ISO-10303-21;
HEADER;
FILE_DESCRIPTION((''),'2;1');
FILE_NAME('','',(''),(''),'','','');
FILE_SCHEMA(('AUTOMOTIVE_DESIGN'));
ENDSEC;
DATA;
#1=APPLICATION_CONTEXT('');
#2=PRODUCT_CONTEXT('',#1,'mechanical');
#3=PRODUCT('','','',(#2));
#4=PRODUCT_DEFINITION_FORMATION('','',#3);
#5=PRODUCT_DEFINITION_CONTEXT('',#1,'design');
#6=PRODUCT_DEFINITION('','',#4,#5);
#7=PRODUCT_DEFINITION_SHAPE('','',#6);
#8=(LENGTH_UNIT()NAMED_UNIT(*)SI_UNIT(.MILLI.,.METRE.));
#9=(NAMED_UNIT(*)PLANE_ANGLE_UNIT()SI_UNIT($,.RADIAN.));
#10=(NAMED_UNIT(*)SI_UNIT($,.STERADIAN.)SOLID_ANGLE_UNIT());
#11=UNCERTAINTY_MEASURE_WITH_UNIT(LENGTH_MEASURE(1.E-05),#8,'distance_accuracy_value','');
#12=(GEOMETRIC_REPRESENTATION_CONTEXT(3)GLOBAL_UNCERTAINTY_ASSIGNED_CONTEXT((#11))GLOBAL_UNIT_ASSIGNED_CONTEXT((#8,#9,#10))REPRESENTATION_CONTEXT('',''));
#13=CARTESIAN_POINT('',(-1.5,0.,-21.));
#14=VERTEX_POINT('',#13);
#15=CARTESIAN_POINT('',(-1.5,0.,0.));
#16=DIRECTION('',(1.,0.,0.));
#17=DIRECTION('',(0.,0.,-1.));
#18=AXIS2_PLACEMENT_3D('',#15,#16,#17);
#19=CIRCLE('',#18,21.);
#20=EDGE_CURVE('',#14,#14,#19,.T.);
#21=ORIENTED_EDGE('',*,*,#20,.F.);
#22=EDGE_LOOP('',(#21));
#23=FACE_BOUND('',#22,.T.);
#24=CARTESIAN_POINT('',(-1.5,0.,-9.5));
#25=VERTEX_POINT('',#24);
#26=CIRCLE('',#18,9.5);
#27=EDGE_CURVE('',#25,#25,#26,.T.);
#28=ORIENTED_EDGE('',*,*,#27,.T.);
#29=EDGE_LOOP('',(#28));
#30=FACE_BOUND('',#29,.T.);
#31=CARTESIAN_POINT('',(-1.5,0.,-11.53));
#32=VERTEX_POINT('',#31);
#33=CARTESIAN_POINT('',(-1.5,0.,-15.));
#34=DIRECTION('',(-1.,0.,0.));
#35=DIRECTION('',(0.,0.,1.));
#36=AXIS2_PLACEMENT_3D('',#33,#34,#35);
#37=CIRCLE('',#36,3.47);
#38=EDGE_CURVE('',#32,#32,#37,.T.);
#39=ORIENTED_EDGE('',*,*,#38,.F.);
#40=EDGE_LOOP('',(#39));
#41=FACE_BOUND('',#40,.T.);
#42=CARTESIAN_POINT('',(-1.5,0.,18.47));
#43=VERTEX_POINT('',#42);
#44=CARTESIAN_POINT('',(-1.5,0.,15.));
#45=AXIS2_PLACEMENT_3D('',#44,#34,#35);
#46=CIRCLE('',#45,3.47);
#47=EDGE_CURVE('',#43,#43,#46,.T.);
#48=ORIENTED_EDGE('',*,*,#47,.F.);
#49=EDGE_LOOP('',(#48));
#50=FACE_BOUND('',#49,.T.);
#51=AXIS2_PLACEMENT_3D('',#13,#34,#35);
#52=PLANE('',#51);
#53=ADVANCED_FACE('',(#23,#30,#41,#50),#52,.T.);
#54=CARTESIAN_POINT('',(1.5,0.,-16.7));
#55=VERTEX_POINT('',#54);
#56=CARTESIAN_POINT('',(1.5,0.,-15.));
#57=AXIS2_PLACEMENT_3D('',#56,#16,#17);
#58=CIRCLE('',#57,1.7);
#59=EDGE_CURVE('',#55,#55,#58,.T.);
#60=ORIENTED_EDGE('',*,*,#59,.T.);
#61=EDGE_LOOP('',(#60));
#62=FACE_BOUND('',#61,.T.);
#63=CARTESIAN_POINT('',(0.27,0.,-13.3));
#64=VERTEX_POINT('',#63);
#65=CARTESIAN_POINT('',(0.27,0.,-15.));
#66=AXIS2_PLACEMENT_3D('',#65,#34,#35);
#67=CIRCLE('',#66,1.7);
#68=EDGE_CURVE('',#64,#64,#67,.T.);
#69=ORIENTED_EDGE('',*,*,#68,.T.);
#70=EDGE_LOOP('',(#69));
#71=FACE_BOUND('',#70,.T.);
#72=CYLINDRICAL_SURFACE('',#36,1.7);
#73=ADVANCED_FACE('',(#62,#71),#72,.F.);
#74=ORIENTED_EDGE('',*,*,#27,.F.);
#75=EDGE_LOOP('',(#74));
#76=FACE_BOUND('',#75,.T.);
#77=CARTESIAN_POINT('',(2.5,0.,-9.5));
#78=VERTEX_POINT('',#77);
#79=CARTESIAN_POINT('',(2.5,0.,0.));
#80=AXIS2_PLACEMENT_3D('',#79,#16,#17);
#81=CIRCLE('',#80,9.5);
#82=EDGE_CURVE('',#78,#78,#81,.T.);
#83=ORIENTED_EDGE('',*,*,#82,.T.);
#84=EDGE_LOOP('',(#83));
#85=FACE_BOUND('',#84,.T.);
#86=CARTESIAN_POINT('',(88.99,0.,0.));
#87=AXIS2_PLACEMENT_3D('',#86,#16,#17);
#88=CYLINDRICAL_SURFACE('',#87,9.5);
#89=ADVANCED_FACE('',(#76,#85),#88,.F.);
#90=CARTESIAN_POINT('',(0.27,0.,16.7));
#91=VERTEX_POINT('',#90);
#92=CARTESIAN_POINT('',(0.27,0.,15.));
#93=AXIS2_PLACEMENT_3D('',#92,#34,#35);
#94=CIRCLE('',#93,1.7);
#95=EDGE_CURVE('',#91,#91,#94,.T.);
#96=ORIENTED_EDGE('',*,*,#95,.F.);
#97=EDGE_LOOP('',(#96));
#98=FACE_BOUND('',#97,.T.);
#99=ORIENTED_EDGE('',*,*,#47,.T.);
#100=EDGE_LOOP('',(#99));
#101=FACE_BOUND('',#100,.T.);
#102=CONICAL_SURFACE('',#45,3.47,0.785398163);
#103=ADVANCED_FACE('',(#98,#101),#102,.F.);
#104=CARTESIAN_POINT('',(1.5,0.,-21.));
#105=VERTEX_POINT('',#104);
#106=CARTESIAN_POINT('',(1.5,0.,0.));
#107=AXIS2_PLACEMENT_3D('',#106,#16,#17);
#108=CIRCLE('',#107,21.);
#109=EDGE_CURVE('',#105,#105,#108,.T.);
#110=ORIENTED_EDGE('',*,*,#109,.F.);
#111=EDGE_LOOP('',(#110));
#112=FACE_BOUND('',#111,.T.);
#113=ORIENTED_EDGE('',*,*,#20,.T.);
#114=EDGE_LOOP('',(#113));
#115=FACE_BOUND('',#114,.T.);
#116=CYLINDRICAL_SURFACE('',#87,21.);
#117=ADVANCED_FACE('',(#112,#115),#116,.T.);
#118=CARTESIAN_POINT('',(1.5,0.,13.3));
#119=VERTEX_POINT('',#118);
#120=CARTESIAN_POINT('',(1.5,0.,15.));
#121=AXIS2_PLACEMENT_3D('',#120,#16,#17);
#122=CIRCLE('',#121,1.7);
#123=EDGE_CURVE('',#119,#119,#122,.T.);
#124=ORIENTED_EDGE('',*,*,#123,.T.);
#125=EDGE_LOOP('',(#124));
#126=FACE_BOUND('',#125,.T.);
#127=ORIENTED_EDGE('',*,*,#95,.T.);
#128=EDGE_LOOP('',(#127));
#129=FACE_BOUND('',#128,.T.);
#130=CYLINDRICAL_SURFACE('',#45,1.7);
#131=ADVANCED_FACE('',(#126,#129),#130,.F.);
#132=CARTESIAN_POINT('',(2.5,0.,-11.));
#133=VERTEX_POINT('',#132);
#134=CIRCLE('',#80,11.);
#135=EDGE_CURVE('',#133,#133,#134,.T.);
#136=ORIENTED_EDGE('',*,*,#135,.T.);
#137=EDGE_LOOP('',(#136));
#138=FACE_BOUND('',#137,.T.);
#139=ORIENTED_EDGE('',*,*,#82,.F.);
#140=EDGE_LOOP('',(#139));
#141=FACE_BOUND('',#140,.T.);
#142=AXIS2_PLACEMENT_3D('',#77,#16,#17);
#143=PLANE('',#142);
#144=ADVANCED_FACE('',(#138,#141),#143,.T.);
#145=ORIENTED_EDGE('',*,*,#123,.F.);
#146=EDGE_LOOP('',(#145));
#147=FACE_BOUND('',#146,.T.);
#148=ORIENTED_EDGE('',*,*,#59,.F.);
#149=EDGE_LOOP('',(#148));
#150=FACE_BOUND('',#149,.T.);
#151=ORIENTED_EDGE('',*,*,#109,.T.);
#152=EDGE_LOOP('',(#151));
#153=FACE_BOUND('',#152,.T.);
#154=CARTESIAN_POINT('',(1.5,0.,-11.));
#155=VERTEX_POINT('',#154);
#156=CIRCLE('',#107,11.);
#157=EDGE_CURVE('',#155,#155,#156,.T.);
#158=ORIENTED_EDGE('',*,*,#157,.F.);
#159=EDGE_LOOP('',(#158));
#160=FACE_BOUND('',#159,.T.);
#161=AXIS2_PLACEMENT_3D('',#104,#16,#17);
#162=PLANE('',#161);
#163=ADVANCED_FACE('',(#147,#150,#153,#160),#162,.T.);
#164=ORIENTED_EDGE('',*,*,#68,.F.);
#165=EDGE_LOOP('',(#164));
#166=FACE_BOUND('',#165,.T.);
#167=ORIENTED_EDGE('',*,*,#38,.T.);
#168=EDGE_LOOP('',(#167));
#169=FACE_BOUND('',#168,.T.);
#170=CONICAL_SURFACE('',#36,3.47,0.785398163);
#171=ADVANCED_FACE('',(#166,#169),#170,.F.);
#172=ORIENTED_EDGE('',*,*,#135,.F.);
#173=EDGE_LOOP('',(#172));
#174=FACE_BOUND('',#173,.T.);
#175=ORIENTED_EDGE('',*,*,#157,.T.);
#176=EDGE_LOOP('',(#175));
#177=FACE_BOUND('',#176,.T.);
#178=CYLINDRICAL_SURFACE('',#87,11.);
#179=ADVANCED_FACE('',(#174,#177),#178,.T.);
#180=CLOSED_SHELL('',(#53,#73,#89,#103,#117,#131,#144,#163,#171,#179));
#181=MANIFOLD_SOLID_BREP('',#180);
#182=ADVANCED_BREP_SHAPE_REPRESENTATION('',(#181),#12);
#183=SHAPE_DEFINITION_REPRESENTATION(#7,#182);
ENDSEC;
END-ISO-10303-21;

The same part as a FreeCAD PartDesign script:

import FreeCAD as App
import Part
import Sketcher

V = App.Vector
Q = App.Units.Quantity

doc = App.newDocument("Part")
body = doc.addObject("PartDesign::Body", "Body")

# Sketch on XZ plane
sketch1 = body.newObject("Sketcher::SketchObject", "Sketch")
sketch1.AttachmentSupport = (doc.getObject("XZ_Plane"), [""])
sketch1.MapMode = "FlatFace"
sketch1.addGeometry([
    Part.LineSegment(V(1.5, -21, 0), V(-1.5, -21, 0)),  # 0
    Part.LineSegment(V(-1.5, -21, 0), V(-1.5, -9.5, 0)),  # 1
    Part.LineSegment(V(-1.5, -9.5, 0), V(2.5, -9.5, 0)),  # 2
    Part.LineSegment(V(2.5, -9.5, 0), V(2.5, -11, 0)),  # 3
    Part.LineSegment(V(2.5, -11, 0), V(1.5, -11, 0)),  # 4
    Part.LineSegment(V(1.5, -11, 0), V(1.5, -21, 0)),  # 5
], False)
sketch1.addConstraint([
    Sketcher.Constraint("Coincident", 0, 2, 1, 1),
    Sketcher.Constraint("Coincident", 1, 2, 2, 1),
    Sketcher.Constraint("Coincident", 2, 2, 3, 1),
    Sketcher.Constraint("Coincident", 3, 2, 4, 1),
    Sketcher.Constraint("Coincident", 4, 2, 5, 1),
    Sketcher.Constraint("Coincident", 5, 2, 0, 1),
    Sketcher.Constraint("Horizontal", 0),
    Sketcher.Constraint("Vertical", 1),
    Sketcher.Constraint("Horizontal", 2),
    Sketcher.Constraint("Vertical", 3),
    Sketcher.Constraint("Horizontal", 4),
    Sketcher.Constraint("Vertical", 5),
    Sketcher.Constraint("DistanceX", 0, 2, 0, 1, 3.0),
    Sketcher.Constraint("DistanceX", 2, 1, 2, 2, 4.0),
    Sketcher.Constraint("DistanceY", 5, 2, 5, 1, 10.0),
    Sketcher.Constraint("DistanceY", 1, 1, 1, 2, 11.5),
    Sketcher.Constraint("DistanceY", 0, 2, -1, 1, 21.0),
    Sketcher.Constraint("DistanceX", 0, 2, -1, 1, 1.5),
])
revolution = body.newObject("PartDesign::Revolution", "Revolution")
revolution.Profile = sketch1
revolution.ReferenceAxis = (sketch1, ["H_Axis"])
revolution.Angle = 360

# Sketch on XZ plane
sketch2 = body.newObject("Sketcher::SketchObject", "Sketch001")
sketch2.AttachmentSupport = (doc.getObject("XZ_Plane"), [""])
sketch2.MapMode = "FlatFace"
sketch2.addGeometry([
    Part.LineSegment(V(1.5, 15, 0), V(-1.5, 15, 0)),  # 0
    Part.LineSegment(V(-1.5, 15, 0), V(-1.5, 18.5, 0)),  # 1
    Part.LineSegment(V(-1.5, 18.5, 0), V(0.3, 16.7, 0)),  # 2
    Part.LineSegment(V(0.3, 16.7, 0), V(1.5, 16.7, 0)),  # 3
    Part.LineSegment(V(1.5, 16.7, 0), V(1.5, 15, 0)),  # 4
], False)
sketch2.addGeometry(Part.LineSegment(V(-1.5, 15, 0), V(1.5, 15, 0)), True)  # axis
sketch2.addConstraint([
    Sketcher.Constraint("Coincident", 0, 2, 1, 1),
    Sketcher.Constraint("Coincident", 1, 2, 2, 1),
    Sketcher.Constraint("Coincident", 2, 2, 3, 1),
    Sketcher.Constraint("Coincident", 3, 2, 4, 1),
    Sketcher.Constraint("Coincident", 4, 2, 0, 1),
    Sketcher.Constraint("Horizontal", 0),
    Sketcher.Constraint("Vertical", 1),
    Sketcher.Constraint("Horizontal", 3),
    Sketcher.Constraint("Vertical", 4),
    Sketcher.Constraint("Horizontal", 5),
    Sketcher.Constraint("Coincident", 5, 1, 0, 2),
    Sketcher.Constraint("Vertical", 3, 2, 5, 2),
    Sketcher.Constraint("DistanceX", 0, 2, 0, 1, 3.0),
    Sketcher.Constraint("Angle", 2, Q("-45 deg")),
    Sketcher.Constraint("DistanceY", 4, 2, 4, 1, 1.7),
    Sketcher.Constraint("DistanceY", -1, 1, 0, 2, 15.0),
    Sketcher.Constraint("DistanceX", 3, 1, 3, 2, 1.23),
    Sketcher.Constraint("DistanceX", 0, 2, -1, 1, 1.5),
])
groove = body.newObject("PartDesign::Groove", "Groove")
groove.Profile = sketch2
groove.ReferenceAxis = (sketch2, ["Axis0"])
groove.Angle = 360
doc.recompute()

linearpattern = body.newObject("PartDesign::LinearPattern", "LinearPattern")
linearpattern.Originals = [groove]
linearpattern.Direction = (doc.getObject("Z_Axis"), [""])
linearpattern.Mode = "offset"
linearpattern.Offset = 30
linearpattern.Occurrences = 2
linearpattern.Reversed = True
body.Tip = linearpattern

doc.recompute()
